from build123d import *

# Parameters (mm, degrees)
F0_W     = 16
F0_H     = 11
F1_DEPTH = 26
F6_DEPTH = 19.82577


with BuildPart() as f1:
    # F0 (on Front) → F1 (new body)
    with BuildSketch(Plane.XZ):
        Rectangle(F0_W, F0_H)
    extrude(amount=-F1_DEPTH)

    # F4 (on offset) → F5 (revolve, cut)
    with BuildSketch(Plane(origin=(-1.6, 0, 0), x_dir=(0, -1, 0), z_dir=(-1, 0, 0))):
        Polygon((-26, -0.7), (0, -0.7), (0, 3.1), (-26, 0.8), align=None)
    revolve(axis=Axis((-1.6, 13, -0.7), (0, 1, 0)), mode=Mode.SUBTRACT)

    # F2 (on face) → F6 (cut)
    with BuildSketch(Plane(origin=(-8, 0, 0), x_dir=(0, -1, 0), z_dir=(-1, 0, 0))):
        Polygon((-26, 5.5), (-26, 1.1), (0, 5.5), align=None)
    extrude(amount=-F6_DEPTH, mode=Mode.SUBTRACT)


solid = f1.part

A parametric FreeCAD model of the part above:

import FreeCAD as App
import Part
import Sketcher
from FreeCAD import Vector


def add_polygon(sketch, points):
    """Adds a closed chain of lines whose ends are joined by coincident constraints."""
    first, n = sketch.GeometryCount, len(points)
    for a, b in zip(points, points[1:] + points[:1]):
        sketch.addGeometry(Part.LineSegment(App.Vector(*a, 0), App.Vector(*b, 0)), False)
    for i in range(n):
        sketch.addConstraint(Sketcher.Constraint("Coincident", first + i, 2, first + (i + 1) % n, 1))

doc = App.newDocument("Part")
body = doc.addObject("PartDesign::Body", "Body")

# Sketch on XZ plane
sketch1 = doc.addObject("Sketcher::SketchObject", "Sketch")
body.addObject(sketch1)
sketch1.AttachmentSupport = (doc.XZ_Plane, [""])
sketch1.MapMode = "FlatFace"
add_polygon(sketch1, [(-8, 6), (-8, -6), (8, -6), (8, 6)])  # lines 0-3
sketch1.addConstraint(Sketcher.Constraint("Vertical", 0))
sketch1.addConstraint(Sketcher.Constraint("Horizontal", 1))
sketch1.addConstraint(Sketcher.Constraint("Vertical", 2))
sketch1.addConstraint(Sketcher.Constraint("Horizontal", 3))
sketch1.addConstraint(Sketcher.Constraint("Symmetric", 0, 2, 2, 2, -1, 1))
sketch1.addConstraint(Sketcher.Constraint("DistanceX", 1, 1, 1, 2, 16.0))
sketch1.addConstraint(Sketcher.Constraint("DistanceY", 0, 2, 0, 1, 11.0))
pad1 = doc.addObject("PartDesign::Pad", "Pad")
body.addObject(pad1)
pad1.Profile = sketch1
pad1.Length = 26
pad1.Reversed = True

# Sketch on YZ plane
sketch2 = doc.addObject("Sketcher::SketchObject", "Sketch001")
body.addObject(sketch2)
sketch2.AttachmentSupport = (doc.YZ_Plane, [""])
sketch2.MapMode = "FlatFace"
sketch2.AttachmentOffset = App.Placement(Vector(0, 0, -1.6), App.Rotation())
add_polygon(sketch2, [(26, -0.7), (0, -0.7), (0, 3.1), (26, 0.8)])  # lines 0-3
sketch2.addGeometry(Part.LineSegment(Vector(0, -0.7, 0), Vector(26, -0.7, 0)), True)  # axis
sketch2.addConstraint(Sketcher.Constraint("Horizontal", 0))
sketch2.addConstraint(Sketcher.Constraint("Vertical", 1))
sketch2.addConstraint(Sketcher.Constraint("Vertical", 3))
sketch2.addConstraint(Sketcher.Constraint("Horizontal", 4))
sketch2.addConstraint(Sketcher.Constraint("Coincident", 4, 1, 0, 2))
sketch2.addConstraint(Sketcher.Constraint("PointOnObject", 0, 2, -2))
sketch2.addConstraint(Sketcher.Constraint("Vertical", 2, 2, 4, 2))
sketch2.addConstraint(Sketcher.Constraint("DistanceX", 0, 2, 0, 1, 26.0))
sketch2.addConstraint(Sketcher.Constraint("DistanceY", 1, 1, 1, 2, 3.8))
sketch2.addConstraint(Sketcher.Constraint("DistanceY", 3, 2, 3, 1, 1.5))
sketch2.addConstraint(Sketcher.Constraint("DistanceY", 0, 2, -1, 1, 0.7))
groove = doc.addObject("PartDesign::Groove", "Groove")
body.addObject(groove)
groove.Profile = sketch2
groove.ReferenceAxis = (sketch2, ["Axis0"])
groove.Angle = 360

# Sketch on YZ plane
sketch3 = doc.addObject("Sketcher::SketchObject", "Sketch002")
body.addObject(sketch3)
sketch3.AttachmentSupport = (doc.YZ_Plane, [""])
sketch3.MapMode = "FlatFace"
sketch3.AttachmentOffset = App.Placement(Vector(0, 0, -8), App.Rotation())
add_polygon(sketch3, [(26, 5.5), (26, 1.1), (0, 5.5)])  # lines 0-2
sketch3.addConstraint(Sketcher.Constraint("Vertical", 0))
sketch3.addConstraint(Sketcher.Constraint("Horizontal", 2))
sketch3.addConstraint(Sketcher.Constraint("PointOnObject", 1, 2, -2))
sketch3.addConstraint(Sketcher.Constraint("DistanceX", 2, 1, 2, 2, 26.0))
sketch3.addConstraint(Sketcher.Constraint("DistanceY", 0, 2, 0, 1, 4.4))
sketch3.addConstraint(Sketcher.Constraint("DistanceY", -1, 1, 0, 2, 1.1))
pocket1 = doc.addObject("PartDesign::Pocket", "Pocket")
body.addObject(pocket1)
pocket1.Profile = sketch3
pocket1.Length = 19.82577
pocket1.Reversed = True

doc.recompute()
